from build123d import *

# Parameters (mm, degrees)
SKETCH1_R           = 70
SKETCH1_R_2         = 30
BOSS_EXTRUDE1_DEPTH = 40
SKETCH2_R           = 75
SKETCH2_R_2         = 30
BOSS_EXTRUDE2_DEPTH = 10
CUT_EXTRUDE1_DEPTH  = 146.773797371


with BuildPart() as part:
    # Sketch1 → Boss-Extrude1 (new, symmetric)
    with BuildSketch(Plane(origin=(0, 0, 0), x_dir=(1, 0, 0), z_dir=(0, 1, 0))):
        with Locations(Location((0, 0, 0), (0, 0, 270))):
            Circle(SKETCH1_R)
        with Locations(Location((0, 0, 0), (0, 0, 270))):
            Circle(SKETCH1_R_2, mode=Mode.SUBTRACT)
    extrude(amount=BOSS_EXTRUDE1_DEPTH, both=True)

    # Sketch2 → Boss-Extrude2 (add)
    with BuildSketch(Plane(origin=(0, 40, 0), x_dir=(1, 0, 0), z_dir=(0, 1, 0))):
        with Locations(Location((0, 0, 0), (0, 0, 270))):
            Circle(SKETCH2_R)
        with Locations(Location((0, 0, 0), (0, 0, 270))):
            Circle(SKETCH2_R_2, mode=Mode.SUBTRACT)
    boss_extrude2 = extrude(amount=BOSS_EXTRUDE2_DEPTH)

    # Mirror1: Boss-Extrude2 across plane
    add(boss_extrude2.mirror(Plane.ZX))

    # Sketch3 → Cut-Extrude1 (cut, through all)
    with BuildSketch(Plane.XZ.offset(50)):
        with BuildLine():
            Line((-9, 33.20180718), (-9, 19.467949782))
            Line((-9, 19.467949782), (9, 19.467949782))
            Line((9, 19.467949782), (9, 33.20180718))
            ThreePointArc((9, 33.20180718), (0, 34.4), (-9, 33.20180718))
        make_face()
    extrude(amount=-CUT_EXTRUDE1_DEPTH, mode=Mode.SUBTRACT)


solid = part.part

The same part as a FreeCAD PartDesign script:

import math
import FreeCAD as App
import Part
import Sketcher
Q = App.Units.Quantity

doc = App.newDocument("Part")
params = doc.addObject("Spreadsheet::Sheet", "Params")
for row, (alias, value) in enumerate([
    ("sketch1_diameter", "140 mm"),
    ("sketch1_diameter2", "60 mm"),
    ("pad1_length", "80 mm"),
    ("sketch2_diameter", "150 mm"),
    ("sketch2_diameter2", "60 mm"),
    ("pad2_length", "10 mm"),
    ("sketch3_radius", "34.4 mm"),
    ("sketch3_width", "18 mm"),
], start=1):
    params.set(f"A{row}", alias)
    params.set(f"B{row}", "=" + value)
    params.setAlias(f"B{row}", alias)

body = doc.addObject("PartDesign::Body", "Body")

sketch1 = doc.addObject("Sketcher::SketchObject", "Sketch")
body.addObject(sketch1)
sketch1.AttachmentSupport = (doc.XZ_Plane, [""])
sketch1.MapMode = "FlatFace"
sketch1.addGeometry([
    Part.Circle(App.Vector(0, 0, 0), App.Vector(0, 0, 1), 70),
    Part.Circle(App.Vector(0, 0, 0), App.Vector(0, 0, 1), 30),
], False)
sketch1.addConstraint([
    Sketcher.Constraint("Coincident", 0, 3, -1, 1),
    Sketcher.Constraint("Coincident", 1, 3, -1, 1),
    Sketcher.Constraint("Diameter", 0, Q("140 mm")),
    Sketcher.Constraint("Diameter", 1, Q("60 mm")),
])
sketch1.setExpression("Constraints[2]", "Params.sketch1_diameter")
sketch1.setExpression("Constraints[3]", "Params.sketch1_diameter2")
pad1 = doc.addObject("PartDesign::Pad", "Pad")
body.addObject(pad1)
pad1.Profile = sketch1
pad1.setExpression("Length", "Params.pad1_length")
pad1.Midplane = True

sketch2 = doc.addObject("Sketcher::SketchObject", "Sketch001")
body.addObject(sketch2)
sketch2.AttachmentSupport = (doc.XZ_Plane, [""])
sketch2.MapMode = "FlatFace"
sketch2.AttachmentOffset = App.Placement(App.Vector(0, 0, -40), App.Rotation())
sketch2.addGeometry([
    Part.Circle(App.Vector(0, 0, 0), App.Vector(0, 0, 1), 75),
    Part.Circle(App.Vector(0, 0, 0), App.Vector(0, 0, 1), 30),
], False)
sketch2.addConstraint([
    Sketcher.Constraint("Coincident", 0, 3, -1, 1),
    Sketcher.Constraint("Coincident", 1, 3, -1, 1),
    Sketcher.Constraint("Diameter", 0, Q("150 mm")),
    Sketcher.Constraint("Diameter", 1, Q("60 mm")),
])
sketch2.setExpression("Constraints[2]", "Params.sketch2_diameter")
sketch2.setExpression("Constraints[3]", "Params.sketch2_diameter2")
pad2 = doc.addObject("PartDesign::Pad", "Pad001")
body.addObject(pad2)
pad2.Profile = sketch2
pad2.setExpression("Length", "Params.pad2_length")
pad2.Reversed = True
doc.recompute()

mirrored = doc.addObject("PartDesign::Mirrored", "Mirrored")
body.addObject(mirrored)
mirrored.Originals = [pad2]
mirrored.MirrorPlane = (doc.XZ_Plane, [""])
body.Tip = mirrored

sketch3 = doc.addObject("Sketcher::SketchObject", "Sketch002")
body.addObject(sketch3)
sketch3.AttachmentSupport = (doc.XZ_Plane, [""])
sketch3.MapMode = "FlatFace"
sketch3.AttachmentOffset = App.Placement(App.Vector(0, 0, 50), App.Rotation())
sketch3.addGeometry([
    Part.LineSegment(App.Vector(-9, 33, 0), App.Vector(-9, 19, 0)),
    Part.LineSegment(App.Vector(-9, 19, 0), App.Vector(9, 19, 0)),
    Part.LineSegment(App.Vector(9, 19, 0), App.Vector(9, 33, 0)),
    Part.ArcOfCircle(Part.Circle(App.Vector(0, 0, 0), App.Vector(0, 0, 1), 34), math.radians(75), math.radians(105)),
], False)
sketch3.addConstraint([
    Sketcher.Constraint("Coincident", 0, 2, 1, 1),
    Sketcher.Constraint("Coincident", 1, 2, 2, 1),
    Sketcher.Constraint("Coincident", 2, 2, 3, 1),
    Sketcher.Constraint("Coincident", 3, 2, 0, 1),
    Sketcher.Constraint("Vertical", 0),
    Sketcher.Constraint("Horizontal", 1),
    Sketcher.Constraint("Vertical", 2),
    Sketcher.Constraint("Coincident", 3, 3, -1, 1),
    Sketcher.Constraint("Horizontal", 2, 2, 3, 2),
    Sketcher.Constraint("Radius", 3, Q("34.4 mm")),
    Sketcher.Constraint("DistanceX", 1, 1, 1, 2, Q("18 mm")),
    Sketcher.Constraint("DistanceY", 0, 2, 0, 1, Q("13.733857 mm")),
])
sketch3.setExpression("Constraints[9]", "Params.sketch3_radius")
sketch3.setExpression("Constraints[10]", "Params.sketch3_width")
pocket1 = doc.addObject("PartDesign::Pocket", "Pocket")
body.addObject(pocket1)
pocket1.Profile = sketch3
pocket1.Type = "ThroughAll"

doc.recompute()
